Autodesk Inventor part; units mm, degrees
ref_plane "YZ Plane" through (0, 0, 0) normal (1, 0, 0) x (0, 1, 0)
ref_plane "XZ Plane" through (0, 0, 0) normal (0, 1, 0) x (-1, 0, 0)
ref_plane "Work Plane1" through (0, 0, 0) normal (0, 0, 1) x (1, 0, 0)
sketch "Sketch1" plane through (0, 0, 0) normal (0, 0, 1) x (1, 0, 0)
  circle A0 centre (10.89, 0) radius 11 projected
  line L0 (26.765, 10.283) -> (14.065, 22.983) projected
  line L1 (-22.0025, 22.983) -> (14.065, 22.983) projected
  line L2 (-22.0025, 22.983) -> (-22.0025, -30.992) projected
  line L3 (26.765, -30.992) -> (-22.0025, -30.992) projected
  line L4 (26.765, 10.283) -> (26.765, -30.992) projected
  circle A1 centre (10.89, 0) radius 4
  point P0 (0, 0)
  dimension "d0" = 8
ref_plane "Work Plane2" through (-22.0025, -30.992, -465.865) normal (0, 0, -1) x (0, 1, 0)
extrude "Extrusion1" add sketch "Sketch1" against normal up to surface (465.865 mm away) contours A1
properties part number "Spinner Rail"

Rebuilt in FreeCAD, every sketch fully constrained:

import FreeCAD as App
import Part
import Sketcher
Q = App.Units.Quantity

doc = App.newDocument("Part")
body = doc.addObject("PartDesign::Body", "Body")

# Sketch on XY plane
sketch1 = body.newObject("Sketcher::SketchObject", "Sketch")
sketch1.AttachmentSupport = (doc.getObject("XY_Plane"), [""])
sketch1.MapMode = "FlatFace"
sketch1.addGeometry(Part.Circle(App.Vector(10.9, 0, 0), App.Vector(0, 0, 1), 4), False)
sketch1.addConstraint([
    Sketcher.Constraint("PointOnObject", 0, 3, -1),
    Sketcher.Constraint("Diameter", 0, Q("8 mm")),
    Sketcher.Constraint("DistanceX", -1, 1, 0, 3, Q("10.89 mm")),
])
pad1 = body.newObject("PartDesign::Pad", "Pad")
pad1.Profile = sketch1
pad1.Length = 465.865
pad1.Reversed = True

doc.recompute()
